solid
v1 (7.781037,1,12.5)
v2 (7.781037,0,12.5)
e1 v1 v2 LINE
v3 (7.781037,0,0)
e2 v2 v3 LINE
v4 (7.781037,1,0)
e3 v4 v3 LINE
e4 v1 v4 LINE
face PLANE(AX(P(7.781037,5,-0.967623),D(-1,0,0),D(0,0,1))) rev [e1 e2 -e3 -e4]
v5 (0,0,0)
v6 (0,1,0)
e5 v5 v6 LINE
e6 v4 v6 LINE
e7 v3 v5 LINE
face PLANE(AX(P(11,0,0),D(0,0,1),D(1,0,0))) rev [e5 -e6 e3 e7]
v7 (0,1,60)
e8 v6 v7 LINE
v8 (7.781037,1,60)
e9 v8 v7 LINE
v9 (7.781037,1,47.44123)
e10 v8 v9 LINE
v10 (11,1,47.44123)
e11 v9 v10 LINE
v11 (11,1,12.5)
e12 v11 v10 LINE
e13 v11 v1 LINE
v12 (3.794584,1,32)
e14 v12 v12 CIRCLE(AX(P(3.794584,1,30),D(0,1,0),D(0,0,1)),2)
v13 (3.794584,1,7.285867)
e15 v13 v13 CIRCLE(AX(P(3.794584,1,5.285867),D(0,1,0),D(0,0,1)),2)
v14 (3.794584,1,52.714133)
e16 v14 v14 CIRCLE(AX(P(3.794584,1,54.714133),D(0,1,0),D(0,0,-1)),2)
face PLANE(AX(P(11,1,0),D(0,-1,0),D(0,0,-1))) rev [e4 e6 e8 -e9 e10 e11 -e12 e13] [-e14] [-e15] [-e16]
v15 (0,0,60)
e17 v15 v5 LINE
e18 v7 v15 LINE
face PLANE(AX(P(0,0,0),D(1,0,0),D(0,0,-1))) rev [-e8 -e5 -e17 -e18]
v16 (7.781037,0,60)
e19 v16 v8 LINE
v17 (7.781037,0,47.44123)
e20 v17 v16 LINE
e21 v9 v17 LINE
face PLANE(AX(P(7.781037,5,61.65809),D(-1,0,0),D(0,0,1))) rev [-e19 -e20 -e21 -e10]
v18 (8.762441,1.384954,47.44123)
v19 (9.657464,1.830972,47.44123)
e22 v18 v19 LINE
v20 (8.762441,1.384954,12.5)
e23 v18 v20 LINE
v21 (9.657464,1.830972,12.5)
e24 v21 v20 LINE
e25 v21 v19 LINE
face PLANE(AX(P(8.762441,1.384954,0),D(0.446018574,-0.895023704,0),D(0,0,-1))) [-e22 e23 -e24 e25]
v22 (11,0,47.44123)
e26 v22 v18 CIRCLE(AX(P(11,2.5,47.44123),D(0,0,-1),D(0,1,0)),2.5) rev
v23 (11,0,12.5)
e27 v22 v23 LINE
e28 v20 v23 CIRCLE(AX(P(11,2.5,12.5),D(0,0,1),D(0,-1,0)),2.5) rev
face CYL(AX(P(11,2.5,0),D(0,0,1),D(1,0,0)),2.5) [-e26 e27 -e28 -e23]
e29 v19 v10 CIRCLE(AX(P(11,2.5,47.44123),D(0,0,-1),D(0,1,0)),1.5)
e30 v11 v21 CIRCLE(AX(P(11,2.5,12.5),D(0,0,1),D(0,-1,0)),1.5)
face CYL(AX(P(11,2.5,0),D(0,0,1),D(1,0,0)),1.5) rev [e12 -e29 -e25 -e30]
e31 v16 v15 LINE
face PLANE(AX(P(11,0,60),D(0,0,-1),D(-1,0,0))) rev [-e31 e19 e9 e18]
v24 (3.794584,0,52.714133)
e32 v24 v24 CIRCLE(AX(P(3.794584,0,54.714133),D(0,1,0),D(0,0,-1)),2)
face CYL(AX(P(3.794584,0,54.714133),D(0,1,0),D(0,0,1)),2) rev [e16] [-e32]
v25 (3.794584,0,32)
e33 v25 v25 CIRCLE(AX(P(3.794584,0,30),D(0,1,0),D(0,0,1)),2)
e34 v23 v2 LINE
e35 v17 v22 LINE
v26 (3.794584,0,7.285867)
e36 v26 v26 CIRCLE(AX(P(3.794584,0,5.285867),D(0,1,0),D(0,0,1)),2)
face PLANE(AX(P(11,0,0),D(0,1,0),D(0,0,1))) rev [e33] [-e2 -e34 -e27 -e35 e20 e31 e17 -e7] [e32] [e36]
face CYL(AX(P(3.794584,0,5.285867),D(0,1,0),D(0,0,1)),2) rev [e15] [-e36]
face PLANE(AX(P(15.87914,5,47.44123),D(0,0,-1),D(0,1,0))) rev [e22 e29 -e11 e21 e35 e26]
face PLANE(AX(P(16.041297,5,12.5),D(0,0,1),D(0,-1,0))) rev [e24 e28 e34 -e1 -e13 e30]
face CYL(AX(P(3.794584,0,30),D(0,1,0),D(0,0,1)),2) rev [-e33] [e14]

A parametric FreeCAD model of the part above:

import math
import FreeCAD as App
import Part
import Sketcher

doc = App.newDocument("Part")
body = doc.addObject("PartDesign::Body", "Body")

sketch1 = doc.addObject("Sketcher::SketchObject", "Sketch")
body.addObject(sketch1)
sketch1.AttachmentSupport = (doc.YZ_Plane, [""])
sketch1.MapMode = "FlatFace"
sketch1.addGeometry(Part.LineSegment(App.Vector(1, 60, 0), App.Vector(0, 60, 0)), False)
sketch1.addGeometry(Part.LineSegment(App.Vector(0, 60, 0), App.Vector(0, 0, 0)), False)
sketch1.addGeometry(Part.LineSegment(App.Vector(0, 0, 0), App.Vector(1, 0, 0)), False)
sketch1.addGeometry(Part.LineSegment(App.Vector(1, 0, 0), App.Vector(1, 60, 0)), False)
sketch1.addConstraint(Sketcher.Constraint("Coincident", 0, 2, 1, 1))
sketch1.addConstraint(Sketcher.Constraint("Coincident", 1, 2, 2, 1))
sketch1.addConstraint(Sketcher.Constraint("Coincident", 2, 2, 3, 1))
sketch1.addConstraint(Sketcher.Constraint("Coincident", 3, 2, 0, 1))
sketch1.addConstraint(Sketcher.Constraint("Horizontal", 0))
sketch1.addConstraint(Sketcher.Constraint("Vertical", 1))
sketch1.addConstraint(Sketcher.Constraint("Horizontal", 2))
sketch1.addConstraint(Sketcher.Constraint("Vertical", 3))
sketch1.addConstraint(Sketcher.Constraint("Coincident", 1, 2, -1, 1))
sketch1.addConstraint(Sketcher.Constraint("DistanceX", 0, 2, 0, 1, 1.0))
sketch1.addConstraint(Sketcher.Constraint("DistanceY", 1, 2, 1, 1, 60.0))

sketch2 = doc.addObject("Sketcher::SketchObject", "Sketch001")
body.addObject(sketch2)
sketch2.AttachmentSupport = (doc.XY_Plane, [""])
sketch2.MapMode = "FlatFace"
sketch2.addGeometry(Part.LineSegment(App.Vector(0, 0, 0), App.Vector(11, 0, 0)), False)
sketch2.addGeometry(Part.ArcOfCircle(Part.Circle(App.Vector(11, 2.5, 0), App.Vector(0, 0, 1), 2.5), math.radians(-90), math.radians(206)), False)
sketch2.addConstraint(Sketcher.Constraint("Tangent", 0, 2, 1, 1))
sketch2.addConstraint(Sketcher.Constraint("Horizontal", 0))
sketch2.addConstraint(Sketcher.Constraint("Coincident", 0, 1, -1, 1))
sketch2.addConstraint(Sketcher.Constraint("Radius", 1, 2.5))
sketch2.addConstraint(Sketcher.Constraint("DistanceX", 0, 1, 0, 2, 11.0))
sketch2.addConstraint(Sketcher.Constraint("DistanceX", -1, 1, 1, 2, 8.762441))
doc.recompute()

additivepipe = doc.addObject("PartDesign::AdditivePipe", "AdditivePipe")
body.addObject(additivepipe)
additivepipe.Profile = sketch1
additivepipe.Spine = (sketch2, ["Edge1", "Edge2"])

sketch3 = doc.addObject("Sketcher::SketchObject", "Sketch002")
body.addObject(sketch3)
sketch3.AttachmentSupport = (doc.XZ_Plane, [""])
sketch3.MapMode = "FlatFace"
sketch3.addGeometry(Part.LineSegment(App.Vector(16, 47, 0), App.Vector(16, 62, 0)), False)
sketch3.addGeometry(Part.LineSegment(App.Vector(16, 62, 0), App.Vector(8, 62, 0)), False)
sketch3.addGeometry(Part.LineSegment(App.Vector(8, 62, 0), App.Vector(8, 47, 0)), False)
sketch3.addGeometry(Part.LineSegment(App.Vector(8, 47, 0), App.Vector(16, 47, 0)), False)
sketch3.addGeometry(Part.LineSegment(App.Vector(16, -1, 0), App.Vector(16, 13, 0)), False)
sketch3.addGeometry(Part.LineSegment(App.Vector(16, 13, 0), App.Vector(8, 13, 0)), False)
sketch3.addGeometry(Part.LineSegment(App.Vector(8, 13, 0), App.Vector(8, -1, 0)), False)
sketch3.addGeometry(Part.LineSegment(App.Vector(8, -1, 0), App.Vector(16, -1, 0)), False)
sketch3.addConstraint(Sketcher.Constraint("Coincident", 0, 2, 1, 1))
sketch3.addConstraint(Sketcher.Constraint("Coincident", 1, 2, 2, 1))
sketch3.addConstraint(Sketcher.Constraint("Coincident", 2, 2, 3, 1))
sketch3.addConstraint(Sketcher.Constraint("Coincident", 3, 2, 0, 1))
sketch3.addConstraint(Sketcher.Constraint("Coincident", 4, 2, 5, 1))
sketch3.addConstraint(Sketcher.Constraint("Coincident", 5, 2, 6, 1))
sketch3.addConstraint(Sketcher.Constraint("Coincident", 6, 2, 7, 1))
sketch3.addConstraint(Sketcher.Constraint("Coincident", 7, 2, 4, 1))
sketch3.addConstraint(Sketcher.Constraint("Vertical", 0))
sketch3.addConstraint(Sketcher.Constraint("Horizontal", 1))
sketch3.addConstraint(Sketcher.Constraint("Vertical", 2))
sketch3.addConstraint(Sketcher.Constraint("Horizontal", 3))
sketch3.addConstraint(Sketcher.Constraint("Vertical", 4))
sketch3.addConstraint(Sketcher.Constraint("Horizontal", 5))
sketch3.addConstraint(Sketcher.Constraint("Vertical", 6))
sketch3.addConstraint(Sketcher.Constraint("Horizontal", 7))
sketch3.addConstraint(Sketcher.Constraint("Vertical", 2, 2, 5, 2))
sketch3.addConstraint(Sketcher.Constraint("DistanceY", -1, 1, 4, 2, 12.5))
sketch3.addConstraint(Sketcher.Constraint("DistanceX", 5, 2, 5, 1, 8.26026))
sketch3.addConstraint(Sketcher.Constraint("DistanceY", 0, 1, 0, 2, 14.216859))
sketch3.addConstraint(Sketcher.Constraint("DistanceX", 1, 2, 1, 1, 8.098103))
sketch3.addConstraint(Sketcher.Constraint("DistanceY", 4, 1, 4, 2, 13.467623))
sketch3.addConstraint(Sketcher.Constraint("DistanceX", -1, 1, 0, 2, 15.87914))
sketch3.addConstraint(Sketcher.Constraint("DistanceY", -1, 1, 0, 2, 61.65809))
pocket1 = doc.addObject("PartDesign::Pocket", "Pocket")
body.addObject(pocket1)
pocket1.Profile = sketch3
pocket1.Type = "ThroughAll"

sketch4 = doc.addObject("Sketcher::SketchObject", "Sketch003")
body.addObject(sketch4)
sketch4.AttachmentSupport = (doc.XZ_Plane, [""])
sketch4.MapMode = "FlatFace"
sketch4.AttachmentOffset = App.Placement(App.Vector(0, 0, -1), App.Rotation())
sketch4.addGeometry(Part.Circle(App.Vector(3.8, 5.3, 0), App.Vector(0, 0, 1), 2), False)
sketch4.addGeometry(Part.Circle(App.Vector(3.8, 54.7, 0), App.Vector(0, 0, 1), 2), False)
sketch4.addGeometry(Part.Circle(App.Vector(3.8, 30, 0), App.Vector(0, 0, 1), 2), False)
sketch4.addConstraint(Sketcher.Constraint("Equal", 0, 1))
sketch4.addConstraint(Sketcher.Constraint("Equal", 1, 2))
sketch4.addConstraint(Sketcher.Constraint("Vertical", 0, 3, 1, 3))
sketch4.addConstraint(Sketcher.Constraint("Vertical", 1, 3, 2, 3))
sketch4.addConstraint(Sketcher.Constraint("Diameter", 0, 4.0))
sketch4.addConstraint(Sketcher.Constraint("DistanceY", -1, 1, 2, 3, 30.0))
sketch4.addConstraint(Sketcher.Constraint("DistanceX", -1, 1, 0, 3, 3.794584))
sketch4.addConstraint(Sketcher.Constraint("DistanceY", -1, 1, 0, 3, 5.285867))
sketch4.addConstraint(Sketcher.Constraint("DistanceY", -1, 1, 1, 3, 54.714133))
pocket2 = doc.addObject("PartDesign::Pocket", "Pocket001")
body.addObject(pocket2)
pocket2.Profile = sketch4
pocket2.Type = "ThroughAll"
pocket2.Reversed = True

doc.recompute()
